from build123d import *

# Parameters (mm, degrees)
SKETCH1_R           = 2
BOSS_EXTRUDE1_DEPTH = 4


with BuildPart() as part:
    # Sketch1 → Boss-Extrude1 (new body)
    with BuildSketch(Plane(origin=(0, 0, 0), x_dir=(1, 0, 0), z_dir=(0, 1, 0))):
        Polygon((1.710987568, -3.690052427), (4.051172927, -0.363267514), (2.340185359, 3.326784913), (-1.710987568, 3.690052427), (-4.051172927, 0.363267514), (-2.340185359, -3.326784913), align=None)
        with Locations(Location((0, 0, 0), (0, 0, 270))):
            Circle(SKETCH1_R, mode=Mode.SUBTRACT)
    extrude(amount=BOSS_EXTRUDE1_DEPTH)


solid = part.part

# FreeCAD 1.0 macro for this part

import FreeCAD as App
import Part
import Sketcher

V = App.Vector

doc = App.newDocument("Part")
body = doc.addObject("PartDesign::Body", "Body")

sketch1 = body.newObject("Sketcher::SketchObject", "Sketch")
sketch1.AttachmentSupport = (doc.getObject("XZ_Plane"), [""])
sketch1.MapMode = "FlatFace"
sketch1.addGeometry([
    Part.LineSegment(V(1.7, 3.7, 0), V(4.1, 0.4, 0)),
    Part.LineSegment(V(4.1, 0.4, 0), V(2.3, -3.3, 0)),
    Part.LineSegment(V(2.3, -3.3, 0), V(-1.7, -3.7, 0)),
    Part.LineSegment(V(-1.7, -3.7, 0), V(-4.1, -0.4, 0)),
    Part.LineSegment(V(-4.1, -0.4, 0), V(-2.3, 3.3, 0)),
    Part.LineSegment(V(-2.3, 3.3, 0), V(1.7, 3.7, 0)),
    Part.Circle(V(0, 0, 0), V(0, 0, 1), 2),
], False)
sketch1.addConstraint([
    Sketcher.Constraint("Coincident", 0, 2, 1, 1),
    Sketcher.Constraint("Coincident", 1, 2, 2, 1),
    Sketcher.Constraint("Coincident", 2, 2, 3, 1),
    Sketcher.Constraint("Coincident", 3, 2, 4, 1),
    Sketcher.Constraint("Coincident", 4, 2, 5, 1),
    Sketcher.Constraint("Coincident", 5, 2, 0, 1),
    Sketcher.Constraint("Coincident", 6, 3, -1, 1),
    Sketcher.Constraint("Symmetric", 0, 2, 3, 2, -1, 1),
    Sketcher.Constraint("Symmetric", 1, 2, 4, 2, -1, 1),
    Sketcher.Constraint("Symmetric", 2, 2, 5, 2, -1, 1),
    Sketcher.Constraint("Equal", 0, 1),
    Sketcher.Constraint("Equal", 1, 2),
    Sketcher.Constraint("Diameter", 6, 4.0),
    Sketcher.Constraint("DistanceX", 2, 2, 0, 2, 5.76216),
    Sketcher.Constraint("DistanceY", 2, 2, 0, 2, 4.05332),
    Sketcher.Constraint("DistanceX", 3, 2, 1, 2, 6.391358),
    Sketcher.Constraint("DistanceX", 4, 2, 1, 2, 4.680371),
])
pad1 = body.newObject("PartDesign::Pad", "Pad")
pad1.Profile = sketch1
pad1.Length = 4
pad1.Reversed = True

doc.recompute()
